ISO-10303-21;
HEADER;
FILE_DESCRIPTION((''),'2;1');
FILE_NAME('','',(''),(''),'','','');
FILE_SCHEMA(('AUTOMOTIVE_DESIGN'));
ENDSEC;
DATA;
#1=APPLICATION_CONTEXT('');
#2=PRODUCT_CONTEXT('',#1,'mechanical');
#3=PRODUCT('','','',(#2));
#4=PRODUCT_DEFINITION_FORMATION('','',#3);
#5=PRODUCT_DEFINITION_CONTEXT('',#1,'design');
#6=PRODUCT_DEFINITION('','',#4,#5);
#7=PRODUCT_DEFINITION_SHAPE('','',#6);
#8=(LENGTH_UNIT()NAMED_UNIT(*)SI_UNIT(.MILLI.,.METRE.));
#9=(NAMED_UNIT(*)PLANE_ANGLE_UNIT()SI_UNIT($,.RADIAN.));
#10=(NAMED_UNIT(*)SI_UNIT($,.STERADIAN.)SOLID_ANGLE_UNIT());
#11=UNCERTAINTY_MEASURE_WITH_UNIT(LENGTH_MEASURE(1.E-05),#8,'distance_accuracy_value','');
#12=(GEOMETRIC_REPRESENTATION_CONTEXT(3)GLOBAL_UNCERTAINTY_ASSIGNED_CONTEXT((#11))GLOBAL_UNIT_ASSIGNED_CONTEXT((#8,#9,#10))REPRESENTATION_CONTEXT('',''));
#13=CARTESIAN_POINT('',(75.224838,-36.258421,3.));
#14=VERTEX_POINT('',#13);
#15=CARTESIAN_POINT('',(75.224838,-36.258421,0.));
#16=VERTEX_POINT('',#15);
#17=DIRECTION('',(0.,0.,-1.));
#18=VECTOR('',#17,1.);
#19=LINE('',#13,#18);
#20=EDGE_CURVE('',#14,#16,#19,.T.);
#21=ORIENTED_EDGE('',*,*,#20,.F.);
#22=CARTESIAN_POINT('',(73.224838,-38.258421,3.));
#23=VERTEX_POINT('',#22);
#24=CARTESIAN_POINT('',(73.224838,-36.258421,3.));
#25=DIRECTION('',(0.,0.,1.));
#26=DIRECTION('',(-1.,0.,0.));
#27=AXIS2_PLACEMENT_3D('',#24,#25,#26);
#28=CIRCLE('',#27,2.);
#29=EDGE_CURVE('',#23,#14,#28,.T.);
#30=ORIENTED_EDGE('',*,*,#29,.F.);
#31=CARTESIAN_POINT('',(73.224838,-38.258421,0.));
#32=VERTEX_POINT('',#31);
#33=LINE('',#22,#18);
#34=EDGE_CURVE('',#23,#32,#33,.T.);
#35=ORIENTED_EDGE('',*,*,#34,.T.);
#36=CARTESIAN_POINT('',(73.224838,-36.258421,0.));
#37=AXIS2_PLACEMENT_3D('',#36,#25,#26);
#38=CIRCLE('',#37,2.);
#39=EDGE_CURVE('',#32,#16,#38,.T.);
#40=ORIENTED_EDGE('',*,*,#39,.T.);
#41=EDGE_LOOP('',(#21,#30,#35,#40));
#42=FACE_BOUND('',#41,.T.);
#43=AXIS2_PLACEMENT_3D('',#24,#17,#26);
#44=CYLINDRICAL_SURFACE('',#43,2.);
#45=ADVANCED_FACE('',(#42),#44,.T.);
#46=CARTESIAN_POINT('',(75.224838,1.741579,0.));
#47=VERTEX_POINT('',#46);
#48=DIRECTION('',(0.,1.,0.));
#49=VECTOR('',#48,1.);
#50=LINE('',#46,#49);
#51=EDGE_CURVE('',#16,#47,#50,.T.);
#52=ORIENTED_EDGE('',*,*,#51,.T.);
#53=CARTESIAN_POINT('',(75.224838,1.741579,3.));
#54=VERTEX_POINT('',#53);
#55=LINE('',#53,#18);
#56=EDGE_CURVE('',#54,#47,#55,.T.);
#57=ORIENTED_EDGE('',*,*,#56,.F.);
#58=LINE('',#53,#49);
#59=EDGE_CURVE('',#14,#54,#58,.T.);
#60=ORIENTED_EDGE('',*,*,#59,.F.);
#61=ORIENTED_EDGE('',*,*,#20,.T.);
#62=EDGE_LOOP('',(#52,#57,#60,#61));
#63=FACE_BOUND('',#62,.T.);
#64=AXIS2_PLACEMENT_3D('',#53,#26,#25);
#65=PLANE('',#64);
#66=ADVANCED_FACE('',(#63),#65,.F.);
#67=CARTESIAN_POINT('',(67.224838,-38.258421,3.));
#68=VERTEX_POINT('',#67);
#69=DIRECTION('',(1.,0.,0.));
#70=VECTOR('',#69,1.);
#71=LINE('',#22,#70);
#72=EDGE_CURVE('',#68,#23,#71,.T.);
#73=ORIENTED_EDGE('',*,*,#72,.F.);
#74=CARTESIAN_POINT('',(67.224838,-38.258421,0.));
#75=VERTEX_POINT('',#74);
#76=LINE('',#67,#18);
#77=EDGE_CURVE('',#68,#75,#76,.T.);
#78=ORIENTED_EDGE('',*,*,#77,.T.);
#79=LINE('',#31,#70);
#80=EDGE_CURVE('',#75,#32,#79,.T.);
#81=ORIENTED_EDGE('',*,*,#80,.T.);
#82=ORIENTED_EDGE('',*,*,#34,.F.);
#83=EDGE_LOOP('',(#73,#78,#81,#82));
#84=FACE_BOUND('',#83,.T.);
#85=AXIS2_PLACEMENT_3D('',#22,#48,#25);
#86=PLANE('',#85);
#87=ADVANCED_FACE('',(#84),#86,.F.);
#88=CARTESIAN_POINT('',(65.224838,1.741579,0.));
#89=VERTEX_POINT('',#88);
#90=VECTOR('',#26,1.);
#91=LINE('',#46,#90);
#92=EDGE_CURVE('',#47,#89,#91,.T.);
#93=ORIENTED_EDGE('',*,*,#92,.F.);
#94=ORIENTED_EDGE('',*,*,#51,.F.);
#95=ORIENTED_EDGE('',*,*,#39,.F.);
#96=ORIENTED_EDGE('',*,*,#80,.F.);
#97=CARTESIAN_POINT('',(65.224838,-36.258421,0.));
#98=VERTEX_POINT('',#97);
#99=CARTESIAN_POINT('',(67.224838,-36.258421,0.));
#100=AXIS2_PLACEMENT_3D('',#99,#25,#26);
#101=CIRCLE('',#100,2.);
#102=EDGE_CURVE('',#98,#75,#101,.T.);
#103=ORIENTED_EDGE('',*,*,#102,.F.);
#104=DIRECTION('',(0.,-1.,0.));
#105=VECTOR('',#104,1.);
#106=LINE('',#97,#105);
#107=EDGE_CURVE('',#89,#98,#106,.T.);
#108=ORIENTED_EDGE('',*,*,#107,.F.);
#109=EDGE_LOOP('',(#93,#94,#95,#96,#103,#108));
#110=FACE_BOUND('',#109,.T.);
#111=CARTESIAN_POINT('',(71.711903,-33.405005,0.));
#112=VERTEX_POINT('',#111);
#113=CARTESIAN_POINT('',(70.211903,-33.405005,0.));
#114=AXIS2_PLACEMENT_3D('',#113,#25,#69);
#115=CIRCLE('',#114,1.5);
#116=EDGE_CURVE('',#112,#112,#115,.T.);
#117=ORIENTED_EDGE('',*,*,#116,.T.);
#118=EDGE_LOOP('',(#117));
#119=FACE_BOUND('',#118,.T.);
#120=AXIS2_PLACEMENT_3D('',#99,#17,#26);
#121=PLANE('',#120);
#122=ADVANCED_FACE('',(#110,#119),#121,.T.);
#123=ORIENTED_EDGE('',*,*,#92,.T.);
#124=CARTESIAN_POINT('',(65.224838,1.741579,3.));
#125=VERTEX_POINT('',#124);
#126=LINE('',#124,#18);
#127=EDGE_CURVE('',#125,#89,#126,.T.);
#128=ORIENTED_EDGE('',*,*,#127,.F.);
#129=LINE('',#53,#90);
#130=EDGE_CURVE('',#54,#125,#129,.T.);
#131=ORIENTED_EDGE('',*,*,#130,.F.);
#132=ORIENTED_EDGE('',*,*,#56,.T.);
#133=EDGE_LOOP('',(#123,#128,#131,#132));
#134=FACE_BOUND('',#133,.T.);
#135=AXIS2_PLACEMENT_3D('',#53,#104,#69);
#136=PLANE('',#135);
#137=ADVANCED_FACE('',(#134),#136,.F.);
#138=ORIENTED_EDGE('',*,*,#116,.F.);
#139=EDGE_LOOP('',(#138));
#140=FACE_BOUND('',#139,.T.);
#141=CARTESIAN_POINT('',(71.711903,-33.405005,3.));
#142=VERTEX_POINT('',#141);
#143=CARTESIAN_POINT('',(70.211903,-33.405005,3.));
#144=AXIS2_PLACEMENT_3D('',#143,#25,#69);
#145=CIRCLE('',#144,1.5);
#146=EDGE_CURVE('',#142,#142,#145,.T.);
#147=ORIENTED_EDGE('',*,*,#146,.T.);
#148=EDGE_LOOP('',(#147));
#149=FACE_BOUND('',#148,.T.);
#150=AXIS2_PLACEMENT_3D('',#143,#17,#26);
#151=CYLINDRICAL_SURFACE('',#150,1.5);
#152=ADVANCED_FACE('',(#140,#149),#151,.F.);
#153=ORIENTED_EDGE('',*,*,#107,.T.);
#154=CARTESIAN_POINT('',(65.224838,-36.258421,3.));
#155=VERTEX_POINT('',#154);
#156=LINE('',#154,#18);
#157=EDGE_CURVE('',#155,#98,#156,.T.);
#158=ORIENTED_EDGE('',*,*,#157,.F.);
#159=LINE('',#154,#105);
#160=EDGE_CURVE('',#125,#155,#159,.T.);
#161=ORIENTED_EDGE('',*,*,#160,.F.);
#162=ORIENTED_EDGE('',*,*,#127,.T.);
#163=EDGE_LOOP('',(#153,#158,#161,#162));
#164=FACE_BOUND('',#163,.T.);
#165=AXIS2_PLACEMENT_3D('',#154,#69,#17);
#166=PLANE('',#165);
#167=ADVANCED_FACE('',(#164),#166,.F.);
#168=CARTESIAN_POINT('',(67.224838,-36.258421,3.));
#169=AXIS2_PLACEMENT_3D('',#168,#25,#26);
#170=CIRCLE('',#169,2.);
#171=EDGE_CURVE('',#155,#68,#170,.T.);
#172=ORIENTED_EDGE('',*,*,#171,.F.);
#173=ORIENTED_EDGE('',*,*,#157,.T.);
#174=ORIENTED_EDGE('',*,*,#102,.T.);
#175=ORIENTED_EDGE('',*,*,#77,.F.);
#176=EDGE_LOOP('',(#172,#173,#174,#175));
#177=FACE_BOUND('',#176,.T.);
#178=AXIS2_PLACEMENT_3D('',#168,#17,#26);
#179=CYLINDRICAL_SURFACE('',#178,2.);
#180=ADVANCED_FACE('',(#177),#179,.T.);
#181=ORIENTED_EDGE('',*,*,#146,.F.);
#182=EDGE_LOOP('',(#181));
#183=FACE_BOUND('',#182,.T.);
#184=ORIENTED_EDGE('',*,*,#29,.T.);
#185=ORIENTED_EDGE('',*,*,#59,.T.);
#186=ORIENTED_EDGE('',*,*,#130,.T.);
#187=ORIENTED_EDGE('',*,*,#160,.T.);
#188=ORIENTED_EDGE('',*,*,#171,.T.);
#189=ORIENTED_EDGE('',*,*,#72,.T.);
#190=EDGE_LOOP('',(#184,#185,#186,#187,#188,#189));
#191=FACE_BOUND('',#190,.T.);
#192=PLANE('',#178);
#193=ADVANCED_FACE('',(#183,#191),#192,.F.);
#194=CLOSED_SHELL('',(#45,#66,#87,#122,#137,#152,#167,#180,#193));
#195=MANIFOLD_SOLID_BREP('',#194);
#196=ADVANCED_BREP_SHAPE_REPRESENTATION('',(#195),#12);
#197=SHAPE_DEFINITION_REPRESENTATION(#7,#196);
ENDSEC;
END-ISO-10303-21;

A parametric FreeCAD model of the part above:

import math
import FreeCAD as App
import Part
import Sketcher

V = App.Vector

doc = App.newDocument("Part")
params = doc.addObject("Spreadsheet::Sheet", "Params")
for row, (alias, value) in enumerate([
    ("sketch1_diameter", "3 mm"),
    ("sketch1_radius", "2 mm"),
    ("sketch1_width", "10 mm"),
    ("sketch1_height", "38 mm"),
    ("pad1_length", "3 mm"),
], start=1):
    params.set(f"A{row}", alias)
    params.set(f"B{row}", "=" + value)
    params.setAlias(f"B{row}", alias)

body = doc.addObject("PartDesign::Body", "Body")

sketch1 = body.newObject("Sketcher::SketchObject", "Sketch")
sketch1.AttachmentSupport = (doc.getObject("XY_Plane"), [""])
sketch1.MapMode = "FlatFace"
sketch1.addGeometry(Part.LineSegment(V(75.2, 1.7, 0), V(65.2, 1.7, 0)), False)
sketch1.addGeometry(Part.LineSegment(V(65.2, 1.7, 0), V(65.2, -36.3, 0)), False)
sketch1.addGeometry(Part.ArcOfCircle(Part.Circle(V(67.2, -36.3, 0), V(0, 0, 1), 2), math.radians(-180), math.radians(-90)), False)
sketch1.addGeometry(Part.LineSegment(V(67.2, -38.3, 0), V(73.2, -38.3, 0)), False)
sketch1.addGeometry(Part.ArcOfCircle(Part.Circle(V(73.2, -36.3, 0), V(0, 0, 1), 2), math.radians(-90), math.radians(0)), False)
sketch1.addGeometry(Part.LineSegment(V(75.2, -36.3, 0), V(75.2, 1.7, 0)), False)
sketch1.addGeometry(Part.Circle(V(70.2, -33.4, 0), V(0, 0, 1), 1.5), False)
sketch1.addConstraint(Sketcher.Constraint("Coincident", 0, 2, 1, 1))
sketch1.addConstraint(Sketcher.Constraint("Tangent", 1, 2, 2, 1))
sketch1.addConstraint(Sketcher.Constraint("Tangent", 2, 2, 3, 1))
sketch1.addConstraint(Sketcher.Constraint("Tangent", 3, 2, 4, 1))
sketch1.addConstraint(Sketcher.Constraint("Tangent", 4, 2, 5, 1))
sketch1.addConstraint(Sketcher.Constraint("Coincident", 5, 2, 0, 1))
sketch1.addConstraint(Sketcher.Constraint("Horizontal", 0))
sketch1.addConstraint(Sketcher.Constraint("Vertical", 1))
sketch1.addConstraint(Sketcher.Constraint("Horizontal", 3))
sketch1.addConstraint(Sketcher.Constraint("Vertical", 5))
sketch1.addConstraint(Sketcher.Constraint("Equal", 2, 4))
sketch1.addConstraint(Sketcher.Constraint("Diameter", 6, 3.0))
sketch1.addConstraint(Sketcher.Constraint("Radius", 2, 2.0))
sketch1.addConstraint(Sketcher.Constraint("DistanceX", 0, 2, 0, 1, 10.0))
sketch1.addConstraint(Sketcher.Constraint("DistanceY", 1, 2, 1, 1, 38.0))
sketch1.addConstraint(Sketcher.Constraint("DistanceX", -1, 1, 2, 3, 67.224838))
sketch1.addConstraint(Sketcher.Constraint("DistanceY", 2, 3, -1, 1, 36.258421))
sketch1.addConstraint(Sketcher.Constraint("DistanceX", -1, 1, 6, 3, 70.211903))
sketch1.addConstraint(Sketcher.Constraint("DistanceY", 6, 3, -1, 1, 33.405005))
sketch1.setExpression("Constraints[11]", "Params.sketch1_diameter")
sketch1.setExpression("Constraints[12]", "Params.sketch1_radius")
sketch1.setExpression("Constraints[13]", "Params.sketch1_width")
sketch1.setExpression("Constraints[14]", "Params.sketch1_height")
pad1 = body.newObject("PartDesign::Pad", "Pad")
pad1.Profile = sketch1
pad1.setExpression("Length", "Params.pad1_length")

doc.recompute()
